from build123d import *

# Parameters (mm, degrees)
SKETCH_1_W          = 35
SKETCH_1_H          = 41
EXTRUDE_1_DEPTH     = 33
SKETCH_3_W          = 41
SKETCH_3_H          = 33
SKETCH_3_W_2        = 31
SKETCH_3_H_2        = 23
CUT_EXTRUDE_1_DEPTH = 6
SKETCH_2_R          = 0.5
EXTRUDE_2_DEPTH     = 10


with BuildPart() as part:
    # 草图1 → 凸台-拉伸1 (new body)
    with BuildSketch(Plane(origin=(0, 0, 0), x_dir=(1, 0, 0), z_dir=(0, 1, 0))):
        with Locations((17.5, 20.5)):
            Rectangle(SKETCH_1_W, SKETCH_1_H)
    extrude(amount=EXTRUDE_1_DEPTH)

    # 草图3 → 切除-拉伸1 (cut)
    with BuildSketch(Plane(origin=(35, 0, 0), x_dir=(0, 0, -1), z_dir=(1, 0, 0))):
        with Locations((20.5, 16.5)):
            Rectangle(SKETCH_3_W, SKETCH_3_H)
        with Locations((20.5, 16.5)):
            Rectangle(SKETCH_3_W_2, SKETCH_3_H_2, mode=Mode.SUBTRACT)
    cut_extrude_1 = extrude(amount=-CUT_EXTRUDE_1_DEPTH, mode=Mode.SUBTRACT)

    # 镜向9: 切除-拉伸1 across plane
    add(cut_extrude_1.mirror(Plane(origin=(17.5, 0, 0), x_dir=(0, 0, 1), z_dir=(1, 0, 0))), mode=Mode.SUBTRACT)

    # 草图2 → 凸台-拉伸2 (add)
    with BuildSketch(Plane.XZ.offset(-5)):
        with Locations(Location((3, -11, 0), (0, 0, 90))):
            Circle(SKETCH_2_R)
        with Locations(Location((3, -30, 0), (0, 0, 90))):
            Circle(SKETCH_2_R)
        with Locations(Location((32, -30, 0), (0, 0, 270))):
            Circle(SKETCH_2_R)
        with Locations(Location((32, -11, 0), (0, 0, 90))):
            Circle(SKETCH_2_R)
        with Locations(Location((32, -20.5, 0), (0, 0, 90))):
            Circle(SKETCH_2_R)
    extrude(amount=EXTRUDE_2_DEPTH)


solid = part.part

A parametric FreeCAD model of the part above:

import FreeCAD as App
import Part
import Sketcher
from FreeCAD import Vector

doc = App.newDocument("Part")
body = doc.addObject("PartDesign::Body", "Body")

# Sketch on XZ plane
sketch1 = body.newObject("Sketcher::SketchObject", "Sketch")
sketch1.AttachmentSupport = (doc.getObject("XZ_Plane"), [""])
sketch1.MapMode = "FlatFace"
sketch1.addGeometry([
    Part.LineSegment(Vector(0, -41, 0), Vector(0, 0, 0)),
    Part.LineSegment(Vector(0, 0, 0), Vector(35, 0, 0)),
    Part.LineSegment(Vector(35, 0, 0), Vector(35, -41, 0)),
    Part.LineSegment(Vector(35, -41, 0), Vector(0, -41, 0)),
], False)
sketch1.addConstraint([
    Sketcher.Constraint("Coincident", 0, 2, 1, 1),
    Sketcher.Constraint("Coincident", 1, 2, 2, 1),
    Sketcher.Constraint("Coincident", 2, 2, 3, 1),
    Sketcher.Constraint("Coincident", 3, 2, 0, 1),
    Sketcher.Constraint("Vertical", 0),
    Sketcher.Constraint("Horizontal", 1),
    Sketcher.Constraint("Vertical", 2),
    Sketcher.Constraint("Horizontal", 3),
    Sketcher.Constraint("Coincident", 0, 2, -1, 1),
    Sketcher.Constraint("DistanceX", 1, 1, 1, 2, 35.0),
    Sketcher.Constraint("DistanceY", 0, 1, 0, 2, 41.0),
])
pad1 = body.newObject("PartDesign::Pad", "Pad")
pad1.Profile = sketch1
pad1.Length = 33
pad1.Reversed = True

# Sketch on YZ plane
sketch2 = body.newObject("Sketcher::SketchObject", "Sketch001")
sketch2.AttachmentSupport = (doc.getObject("YZ_Plane"), [""])
sketch2.MapMode = "FlatFace"
sketch2.AttachmentOffset = App.Placement(Vector(0, 0, 35), App.Rotation())
sketch2.addGeometry([
    Part.LineSegment(Vector(33, 0, 0), Vector(0, 0, 0)),  # 0
    Part.LineSegment(Vector(0, 0, 0), Vector(0, -41, 0)),  # 1
    Part.LineSegment(Vector(0, -41, 0), Vector(33, -41, 0)),  # 2
    Part.LineSegment(Vector(33, -41, 0), Vector(33, 0, 0)),  # 3
    Part.LineSegment(Vector(5, -36, 0), Vector(5, -5, 0)),  # 4
    Part.LineSegment(Vector(5, -5, 0), Vector(28, -5, 0)),  # 5
    Part.LineSegment(Vector(28, -5, 0), Vector(28, -36, 0)),  # 6
    Part.LineSegment(Vector(28, -36, 0), Vector(5, -36, 0)),  # 7
], False)
sketch2.addConstraint([
    Sketcher.Constraint("Coincident", 0, 2, 1, 1),
    Sketcher.Constraint("Coincident", 1, 2, 2, 1),
    Sketcher.Constraint("Coincident", 2, 2, 3, 1),
    Sketcher.Constraint("Coincident", 3, 2, 0, 1),
    Sketcher.Constraint("Coincident", 4, 2, 5, 1),
    Sketcher.Constraint("Coincident", 5, 2, 6, 1),
    Sketcher.Constraint("Coincident", 6, 2, 7, 1),
    Sketcher.Constraint("Coincident", 7, 2, 4, 1),
    Sketcher.Constraint("Horizontal", 0),
    Sketcher.Constraint("Vertical", 1),
    Sketcher.Constraint("Horizontal", 2),
    Sketcher.Constraint("Vertical", 3),
    Sketcher.Constraint("Vertical", 4),
    Sketcher.Constraint("Horizontal", 5),
    Sketcher.Constraint("Vertical", 6),
    Sketcher.Constraint("Horizontal", 7),
    Sketcher.Constraint("Coincident", 0, 2, -1, 1),
    Sketcher.Constraint("DistanceX", 0, 2, 0, 1, 33.0),
    Sketcher.Constraint("DistanceX", 5, 1, 5, 2, 23.0),
    Sketcher.Constraint("DistanceY", 1, 2, 1, 1, 41.0),
    Sketcher.Constraint("DistanceY", 4, 1, 4, 2, 31.0),
    Sketcher.Constraint("DistanceX", -1, 1, 4, 2, 5.0),
    Sketcher.Constraint("DistanceY", 4, 2, -1, 1, 5.0),
])
pocket1 = body.newObject("PartDesign::Pocket", "Pocket")
pocket1.Profile = sketch2
pocket1.Length = 6
doc.recompute()

datumplane = body.newObject("PartDesign::Plane", "DatumPlane")
datumplane.AttachmentSupport = (doc.getObject("YZ_Plane"), [""])
datumplane.MapMode = "FlatFace"
datumplane.AttachmentOffset = App.Placement(Vector(0, 0, 17.5), App.Rotation())
mirrored = body.newObject("PartDesign::Mirrored", "Mirrored")
mirrored.Originals = [pocket1]
mirrored.MirrorPlane = (datumplane, [""])
body.Tip = mirrored

# Sketch on XZ plane
sketch3 = body.newObject("Sketcher::SketchObject", "Sketch002")
sketch3.AttachmentSupport = (doc.getObject("XZ_Plane"), [""])
sketch3.MapMode = "FlatFace"
sketch3.AttachmentOffset = App.Placement(Vector(0, 0, -5), App.Rotation())
sketch3.addGeometry([
    Part.Circle(Vector(3, -11, 0), Vector(0, 0, 1), 0.5),  # 0
    Part.Circle(Vector(3, -30, 0), Vector(0, 0, 1), 0.5),  # 1
    Part.Circle(Vector(32, -30, 0), Vector(0, 0, 1), 0.5),  # 2
    Part.Circle(Vector(32, -11, 0), Vector(0, 0, 1), 0.5),  # 3
    Part.Circle(Vector(32, -20.5, 0), Vector(0, 0, 1), 0.5),  # 4
], False)
sketch3.addConstraint([
    Sketcher.Constraint("Equal", 0, 1),
    Sketcher.Constraint("Equal", 1, 2),
    Sketcher.Constraint("Equal", 2, 3),
    Sketcher.Constraint("Equal", 3, 4),
    Sketcher.Constraint("Horizontal", 1, 3, 2, 3),
    Sketcher.Constraint("Horizontal", 0, 3, 3, 3),
    Sketcher.Constraint("Vertical", 0, 3, 1, 3),
    Sketcher.Constraint("Vertical", 2, 3, 3, 3),
    Sketcher.Constraint("Vertical", 3, 3, 4, 3),
    Sketcher.Constraint("Diameter", 0, 1.0),
    Sketcher.Constraint("DistanceX", -1, 1, 0, 3, 3.0),
    Sketcher.Constraint("DistanceY", 0, 3, -1, 1, 11.0),
    Sketcher.Constraint("DistanceY", 1, 3, -1, 1, 30.0),
    Sketcher.Constraint("DistanceX", -1, 1, 2, 3, 32.0),
    Sketcher.Constraint("DistanceY", 4, 3, -1, 1, 20.5),
])
pad2 = body.newObject("PartDesign::Pad", "Pad001")
pad2.Profile = sketch3
pad2.Length = 10

doc.recompute()
